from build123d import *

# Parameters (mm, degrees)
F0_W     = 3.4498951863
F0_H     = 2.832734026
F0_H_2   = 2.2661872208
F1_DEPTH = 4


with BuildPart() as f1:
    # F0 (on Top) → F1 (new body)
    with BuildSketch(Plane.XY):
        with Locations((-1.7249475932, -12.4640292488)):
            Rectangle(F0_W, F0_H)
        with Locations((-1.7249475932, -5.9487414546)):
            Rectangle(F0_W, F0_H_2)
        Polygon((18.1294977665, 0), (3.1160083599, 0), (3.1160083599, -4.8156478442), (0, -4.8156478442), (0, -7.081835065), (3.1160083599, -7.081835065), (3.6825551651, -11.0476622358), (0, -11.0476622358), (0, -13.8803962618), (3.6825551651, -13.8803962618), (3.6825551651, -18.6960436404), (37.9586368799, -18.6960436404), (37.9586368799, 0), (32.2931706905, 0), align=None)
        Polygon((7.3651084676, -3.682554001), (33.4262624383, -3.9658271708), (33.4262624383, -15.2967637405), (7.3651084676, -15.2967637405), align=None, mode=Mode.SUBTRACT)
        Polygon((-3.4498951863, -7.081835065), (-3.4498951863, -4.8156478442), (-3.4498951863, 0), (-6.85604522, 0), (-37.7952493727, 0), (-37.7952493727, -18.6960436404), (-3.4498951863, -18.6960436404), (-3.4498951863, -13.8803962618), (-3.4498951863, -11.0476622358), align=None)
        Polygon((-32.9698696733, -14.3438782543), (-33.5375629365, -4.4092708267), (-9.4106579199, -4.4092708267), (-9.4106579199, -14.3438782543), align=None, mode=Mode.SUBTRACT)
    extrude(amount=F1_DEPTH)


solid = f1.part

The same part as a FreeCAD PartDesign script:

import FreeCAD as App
import Part
import Sketcher

V = App.Vector
Q = App.Units.Quantity

doc = App.newDocument("Part")
body = doc.addObject("PartDesign::Body", "Body")

sketch1 = body.newObject("Sketcher::SketchObject", "Sketch")
sketch1.AttachmentSupport = (doc.getObject("XY_Plane"), [""])
sketch1.MapMode = "FlatFace"
sketch1.addGeometry(Part.LineSegment(V(-3.4, -13.9, 0), V(3.7, -13.9, 0)), False)
sketch1.addGeometry(Part.LineSegment(V(3.7, -13.9, 0), V(3.7, -18.7, 0)), False)
sketch1.addGeometry(Part.LineSegment(V(3.7, -18.7, 0), V(38, -18.7, 0)), False)
sketch1.addGeometry(Part.LineSegment(V(38, -18.7, 0), V(38, 0, 0)), False)
sketch1.addGeometry(Part.LineSegment(V(38, 0, 0), V(3.1, 0, 0)), False)
sketch1.addGeometry(Part.LineSegment(V(3.1, 0, 0), V(3.1, -4.8, 0)), False)
sketch1.addGeometry(Part.LineSegment(V(3.1, -4.8, 0), V(-3.4, -4.8, 0)), False)
sketch1.addGeometry(Part.LineSegment(V(-3.4, -4.8, 0), V(-3.4, 0, 0)), False)
sketch1.addGeometry(Part.LineSegment(V(-3.4, 0, 0), V(-37.8, 0, 0)), False)
sketch1.addGeometry(Part.LineSegment(V(-37.8, 0, 0), V(-37.8, -18.7, 0)), False)
sketch1.addGeometry(Part.LineSegment(V(-37.8, -18.7, 0), V(-3.4, -18.7, 0)), False)
sketch1.addGeometry(Part.LineSegment(V(-3.4, -18.7, 0), V(-3.4, -13.9, 0)), False)
sketch1.addGeometry(Part.LineSegment(V(-9.4, -14.3, 0), V(-33, -14.3, 0)), False)
sketch1.addGeometry(Part.LineSegment(V(-33, -14.3, 0), V(-33.5, -4.4, 0)), False)
sketch1.addGeometry(Part.LineSegment(V(-33.5, -4.4, 0), V(-9.4, -4.4, 0)), False)
sketch1.addGeometry(Part.LineSegment(V(-9.4, -4.4, 0), V(-9.4, -14.3, 0)), False)
sketch1.addGeometry(Part.LineSegment(V(3.7, -11, 0), V(-3.4, -11, 0)), False)
sketch1.addGeometry(Part.LineSegment(V(-3.4, -11, 0), V(-3.4, -7.1, 0)), False)
sketch1.addGeometry(Part.LineSegment(V(-3.4, -7.1, 0), V(3.1, -7.1, 0)), False)
sketch1.addGeometry(Part.LineSegment(V(3.1, -7.1, 0), V(3.7, -11, 0)), False)
sketch1.addGeometry(Part.LineSegment(V(7.4, -15.3, 0), V(7.4, -3.7, 0)), False)
sketch1.addGeometry(Part.LineSegment(V(7.4, -3.7, 0), V(33.4, -4, 0)), False)
sketch1.addGeometry(Part.LineSegment(V(33.4, -4, 0), V(33.4, -15.3, 0)), False)
sketch1.addGeometry(Part.LineSegment(V(33.4, -15.3, 0), V(7.4, -15.3, 0)), False)
sketch1.addConstraint(Sketcher.Constraint("Coincident", 0, 2, 1, 1))
sketch1.addConstraint(Sketcher.Constraint("Coincident", 1, 2, 2, 1))
sketch1.addConstraint(Sketcher.Constraint("Coincident", 2, 2, 3, 1))
sketch1.addConstraint(Sketcher.Constraint("Coincident", 3, 2, 4, 1))
sketch1.addConstraint(Sketcher.Constraint("Coincident", 4, 2, 5, 1))
sketch1.addConstraint(Sketcher.Constraint("Coincident", 5, 2, 6, 1))
sketch1.addConstraint(Sketcher.Constraint("Coincident", 6, 2, 7, 1))
sketch1.addConstraint(Sketcher.Constraint("Coincident", 7, 2, 8, 1))
sketch1.addConstraint(Sketcher.Constraint("Coincident", 8, 2, 9, 1))
sketch1.addConstraint(Sketcher.Constraint("Coincident", 9, 2, 10, 1))
sketch1.addConstraint(Sketcher.Constraint("Coincident", 10, 2, 11, 1))
sketch1.addConstraint(Sketcher.Constraint("Coincident", 11, 2, 0, 1))
sketch1.addConstraint(Sketcher.Constraint("Coincident", 12, 2, 13, 1))
sketch1.addConstraint(Sketcher.Constraint("Coincident", 13, 2, 14, 1))
sketch1.addConstraint(Sketcher.Constraint("Coincident", 14, 2, 15, 1))
sketch1.addConstraint(Sketcher.Constraint("Coincident", 15, 2, 12, 1))
sketch1.addConstraint(Sketcher.Constraint("Coincident", 16, 2, 17, 1))
sketch1.addConstraint(Sketcher.Constraint("Coincident", 17, 2, 18, 1))
sketch1.addConstraint(Sketcher.Constraint("Coincident", 18, 2, 19, 1))
sketch1.addConstraint(Sketcher.Constraint("Coincident", 19, 2, 16, 1))
sketch1.addConstraint(Sketcher.Constraint("Coincident", 20, 2, 21, 1))
sketch1.addConstraint(Sketcher.Constraint("Coincident", 21, 2, 22, 1))
sketch1.addConstraint(Sketcher.Constraint("Coincident", 22, 2, 23, 1))
sketch1.addConstraint(Sketcher.Constraint("Coincident", 23, 2, 20, 1))
sketch1.addConstraint(Sketcher.Constraint("Horizontal", 0))
sketch1.addConstraint(Sketcher.Constraint("Vertical", 1))
sketch1.addConstraint(Sketcher.Constraint("Horizontal", 2))
sketch1.addConstraint(Sketcher.Constraint("Vertical", 3))
sketch1.addConstraint(Sketcher.Constraint("Horizontal", 4))
sketch1.addConstraint(Sketcher.Constraint("Vertical", 5))
sketch1.addConstraint(Sketcher.Constraint("Horizontal", 6))
sketch1.addConstraint(Sketcher.Constraint("Vertical", 7))
sketch1.addConstraint(Sketcher.Constraint("Horizontal", 8))
sketch1.addConstraint(Sketcher.Constraint("Vertical", 9))
sketch1.addConstraint(Sketcher.Constraint("Horizontal", 10))
sketch1.addConstraint(Sketcher.Constraint("Vertical", 11))
sketch1.addConstraint(Sketcher.Constraint("Horizontal", 12))
sketch1.addConstraint(Sketcher.Constraint("Horizontal", 14))
sketch1.addConstraint(Sketcher.Constraint("Vertical", 15))
sketch1.addConstraint(Sketcher.Constraint("Horizontal", 16))
sketch1.addConstraint(Sketcher.Constraint("Vertical", 17))
sketch1.addConstraint(Sketcher.Constraint("Horizontal", 18))
sketch1.addConstraint(Sketcher.Constraint("Vertical", 20))
sketch1.addConstraint(Sketcher.Constraint("Vertical", 22))
sketch1.addConstraint(Sketcher.Constraint("Horizontal", 23))
sketch1.addConstraint(Sketcher.Constraint("PointOnObject", 3, 2, -1))
sketch1.addConstraint(Sketcher.Constraint("PointOnObject", 7, 2, -1))
sketch1.addConstraint(Sketcher.Constraint("Horizontal", 2, 2, 9, 2))
sketch1.addConstraint(Sketcher.Constraint("Vertical", 7, 2, 10, 2))
sketch1.addConstraint(Sketcher.Constraint("Vertical", 11, 2, 16, 2))
sketch1.addConstraint(Sketcher.Constraint("Vertical", 5, 2, 18, 2))
sketch1.addConstraint(Sketcher.Constraint("Vertical", 1, 2, 19, 2))
sketch1.addConstraint(Sketcher.Constraint("Equal", 1, 5))
sketch1.addConstraint(Sketcher.Constraint("DistanceX", 0, 1, 0, 2, Q("7.13245 mm")))
sketch1.addConstraint(Sketcher.Constraint("DistanceX", 2, 1, 2, 2, Q("34.276082 mm")))
sketch1.addConstraint(Sketcher.Constraint("DistanceX", 4, 2, 4, 1, Q("34.842629 mm")))
sketch1.addConstraint(Sketcher.Constraint("DistanceX", 12, 2, 12, 1, Q("23.559212 mm")))
sketch1.addConstraint(Sketcher.Constraint("DistanceY", 20, 1, 20, 2, Q("11.61421 mm")))
sketch1.addConstraint(Sketcher.Constraint("DistanceX", 5, 2, 20, 2, Q("4.2491 mm")))
sketch1.addConstraint(Sketcher.Constraint("DistanceY", 23, 2, 19, 2, Q("4.249102 mm")))
sketch1.addConstraint(Sketcher.Constraint("Distance", 19, Q("4.00609 mm")))
sketch1.addConstraint(Sketcher.Constraint("DistanceX", 8, 2, 8, 1, Q("34.345354 mm")))
sketch1.addConstraint(Sketcher.Constraint("DistanceX", 14, 1, 14, 2, Q("24.126905 mm")))
sketch1.addConstraint(Sketcher.Constraint("DistanceX", 23, 2, 23, 1, Q("26.061154 mm")))
sketch1.addConstraint(Sketcher.Constraint("DistanceY", 1, 2, 1, 1, Q("4.815647 mm")))
sketch1.addConstraint(Sketcher.Constraint("DistanceY", 3, 1, 3, 2, Q("18.696044 mm")))
sketch1.addConstraint(Sketcher.Constraint("DistanceY", 15, 2, 15, 1, Q("9.934607 mm")))
sketch1.addConstraint(Sketcher.Constraint("DistanceY", 22, 2, 22, 1, Q("11.330937 mm")))
sketch1.addConstraint(Sketcher.Constraint("DistanceX", -1, 1, 4, 2, Q("3.116008 mm")))
sketch1.addConstraint(Sketcher.Constraint("DistanceX", 12, 2, -1, 1, Q("32.96987 mm")))
sketch1.addConstraint(Sketcher.Constraint("DistanceY", 12, 2, -1, 1, Q("14.343878 mm")))
sketch1.addConstraint(Sketcher.Constraint("DistanceY", 10, 2, 16, 2, Q("7.648381 mm")))
pad1 = body.newObject("PartDesign::Pad", "Pad")
pad1.Profile = sketch1
pad1.Length = 4

doc.recompute()
